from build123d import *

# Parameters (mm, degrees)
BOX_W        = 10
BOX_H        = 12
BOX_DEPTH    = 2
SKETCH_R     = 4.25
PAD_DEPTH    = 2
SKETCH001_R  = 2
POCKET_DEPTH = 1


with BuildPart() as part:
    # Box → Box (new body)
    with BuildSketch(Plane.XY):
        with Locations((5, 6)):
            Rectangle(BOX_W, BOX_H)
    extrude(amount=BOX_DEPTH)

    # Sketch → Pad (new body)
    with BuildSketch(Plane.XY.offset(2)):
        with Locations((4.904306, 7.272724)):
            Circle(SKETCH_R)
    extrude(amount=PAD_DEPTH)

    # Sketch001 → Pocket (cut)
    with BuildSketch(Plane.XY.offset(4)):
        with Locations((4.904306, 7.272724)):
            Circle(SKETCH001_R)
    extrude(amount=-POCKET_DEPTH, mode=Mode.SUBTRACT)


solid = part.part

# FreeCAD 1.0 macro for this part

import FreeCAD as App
import Part
import Sketcher
from FreeCAD import Vector
Q = App.Units.Quantity

doc = App.newDocument("Part")
body = doc.addObject("PartDesign::Body", "Body")

# Sketch on XY plane
sketch1 = doc.addObject("Sketcher::SketchObject", "Sketch")
body.addObject(sketch1)
sketch1.AttachmentSupport = (doc.XY_Plane, [""])
sketch1.MapMode = "FlatFace"
sketch1.addGeometry(Part.LineSegment(Vector(0, 12, 0), Vector(0, 0, 0)), False)
sketch1.addGeometry(Part.LineSegment(Vector(0, 0, 0), Vector(10, 0, 0)), False)
sketch1.addGeometry(Part.LineSegment(Vector(10, 0, 0), Vector(10, 12, 0)), False)
sketch1.addGeometry(Part.LineSegment(Vector(10, 12, 0), Vector(0, 12, 0)), False)
sketch1.addConstraint(Sketcher.Constraint("Coincident", 0, 2, 1, 1))
sketch1.addConstraint(Sketcher.Constraint("Coincident", 1, 2, 2, 1))
sketch1.addConstraint(Sketcher.Constraint("Coincident", 2, 2, 3, 1))
sketch1.addConstraint(Sketcher.Constraint("Coincident", 3, 2, 0, 1))
sketch1.addConstraint(Sketcher.Constraint("Vertical", 0))
sketch1.addConstraint(Sketcher.Constraint("Horizontal", 1))
sketch1.addConstraint(Sketcher.Constraint("Vertical", 2))
sketch1.addConstraint(Sketcher.Constraint("Horizontal", 3))
sketch1.addConstraint(Sketcher.Constraint("Coincident", 0, 2, -1, 1))
sketch1.addConstraint(Sketcher.Constraint("DistanceX", 1, 1, 1, 2, Q("10 mm")))
sketch1.addConstraint(Sketcher.Constraint("DistanceY", 0, 2, 0, 1, Q("12 mm")))
pad1 = doc.addObject("PartDesign::Pad", "Pad")
body.addObject(pad1)
pad1.Profile = sketch1
pad1.Length = 2

# Sketch on XY plane
sketch2 = doc.addObject("Sketcher::SketchObject", "Sketch001")
body.addObject(sketch2)
sketch2.AttachmentSupport = (doc.XY_Plane, [""])
sketch2.MapMode = "FlatFace"
sketch2.AttachmentOffset = App.Placement(Vector(0, 0, 2), App.Rotation())
sketch2.addGeometry(Part.Circle(Vector(4.9, 7.3, 0), Vector(0, 0, 1), 4.2), False)
sketch2.addConstraint(Sketcher.Constraint("Diameter", 0, Q("8.5 mm")))
sketch2.addConstraint(Sketcher.Constraint("DistanceX", -1, 1, 0, 3, Q("4.904306 mm")))
sketch2.addConstraint(Sketcher.Constraint("DistanceY", -1, 1, 0, 3, Q("7.272724 mm")))
pad2 = doc.addObject("PartDesign::Pad", "Pad001")
body.addObject(pad2)
pad2.Profile = sketch2
pad2.Length = 2

# Sketch on XY plane
sketch3 = doc.addObject("Sketcher::SketchObject", "Sketch002")
body.addObject(sketch3)
sketch3.AttachmentSupport = (doc.XY_Plane, [""])
sketch3.MapMode = "FlatFace"
sketch3.AttachmentOffset = App.Placement(Vector(0, 0, 4), App.Rotation())
sketch3.addGeometry(Part.Circle(Vector(4.9, 7.3, 0), Vector(0, 0, 1), 2), False)
sketch3.addConstraint(Sketcher.Constraint("Diameter", 0, Q("4 mm")))
sketch3.addConstraint(Sketcher.Constraint("DistanceX", -1, 1, 0, 3, Q("4.904306 mm")))
sketch3.addConstraint(Sketcher.Constraint("DistanceY", -1, 1, 0, 3, Q("7.272724 mm")))
pocket1 = doc.addObject("PartDesign::Pocket", "Pocket")
body.addObject(pocket1)
pocket1.Profile = sketch3
pocket1.Length = 1

doc.recompute()
